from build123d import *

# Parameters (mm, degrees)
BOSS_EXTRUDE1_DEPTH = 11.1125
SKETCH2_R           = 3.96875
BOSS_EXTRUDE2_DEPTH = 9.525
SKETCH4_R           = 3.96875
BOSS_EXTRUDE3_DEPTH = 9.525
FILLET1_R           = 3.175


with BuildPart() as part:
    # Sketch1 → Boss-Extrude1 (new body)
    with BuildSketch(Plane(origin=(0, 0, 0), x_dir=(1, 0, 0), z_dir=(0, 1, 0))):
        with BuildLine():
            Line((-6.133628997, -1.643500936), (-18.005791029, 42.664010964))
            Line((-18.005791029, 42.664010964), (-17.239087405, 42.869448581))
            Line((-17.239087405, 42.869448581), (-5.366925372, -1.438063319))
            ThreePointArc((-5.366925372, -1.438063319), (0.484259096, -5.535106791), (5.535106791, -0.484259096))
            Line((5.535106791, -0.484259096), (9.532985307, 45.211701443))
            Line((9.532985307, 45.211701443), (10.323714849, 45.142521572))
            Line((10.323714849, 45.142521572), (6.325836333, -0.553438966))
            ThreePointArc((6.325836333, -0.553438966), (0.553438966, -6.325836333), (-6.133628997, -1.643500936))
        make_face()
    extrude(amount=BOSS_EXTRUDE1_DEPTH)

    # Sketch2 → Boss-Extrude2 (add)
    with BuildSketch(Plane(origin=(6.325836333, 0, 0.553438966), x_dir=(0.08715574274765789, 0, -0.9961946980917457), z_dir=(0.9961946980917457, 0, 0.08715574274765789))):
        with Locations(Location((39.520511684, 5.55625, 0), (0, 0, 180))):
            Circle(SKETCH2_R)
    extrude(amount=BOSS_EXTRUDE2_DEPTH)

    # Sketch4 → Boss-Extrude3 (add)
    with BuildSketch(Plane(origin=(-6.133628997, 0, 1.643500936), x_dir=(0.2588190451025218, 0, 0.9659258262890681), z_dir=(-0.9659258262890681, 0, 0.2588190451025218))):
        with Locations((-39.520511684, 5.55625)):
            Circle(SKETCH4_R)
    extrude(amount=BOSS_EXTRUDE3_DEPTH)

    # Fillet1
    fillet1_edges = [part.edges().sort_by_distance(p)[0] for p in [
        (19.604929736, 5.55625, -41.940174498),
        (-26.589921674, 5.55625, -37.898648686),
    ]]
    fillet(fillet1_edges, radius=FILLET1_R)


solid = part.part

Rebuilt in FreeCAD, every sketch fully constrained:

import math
import FreeCAD as App
import Part
import Sketcher

V = App.Vector
Q = App.Units.Quantity


def edges_at(feature, points):
    """Names of the edges that pass closest to the given points."""
    edges = feature.Shape.Edges
    near = lambda p: min(range(len(edges)), key=lambda i: edges[i].distToShape(Part.Vertex(*p))[0])
    return sorted({f"Edge{near(p) + 1}" for p in points})

doc = App.newDocument("Part")
body = doc.addObject("PartDesign::Body", "Body")

# Sketch on XZ plane
sketch1 = body.newObject("Sketcher::SketchObject", "Sketch")
sketch1.AttachmentSupport = (doc.getObject("XZ_Plane"), [""])
sketch1.MapMode = "FlatFace"
sketch1.addGeometry([
    Part.LineSegment(V(-18.005791, -42.664011, 0), V(-6.133629, 1.643501, 0)),  # 0
    Part.ArcOfCircle(Part.Circle(V(0, 0, 0), V(0, 0, 1), 6.35), math.radians(5), math.radians(165)),  # 1
    Part.LineSegment(V(6.325836, 0.553439, 0), V(10.323715, -45.142522, 0)),  # 2
    Part.LineSegment(V(10.323715, -45.142522, 0), V(9.532985, -45.211701, 0)),  # 3
    Part.LineSegment(V(9.532985, -45.211701, 0), V(5.535107, 0.484259, 0)),  # 4
    Part.ArcOfCircle(Part.Circle(V(0, 0, 0), V(0, 0, 1), 5.55625), math.radians(5), math.radians(165)),  # 5
    Part.LineSegment(V(-5.366925, 1.438063, 0), V(-17.239087, -42.869449, 0)),  # 6
    Part.LineSegment(V(-17.239087, -42.869449, 0), V(-18.005791, -42.664011, 0)),  # 7
], False)
sketch1.addConstraint([
    Sketcher.Constraint("Tangent", 0, 2, 1, 2),
    Sketcher.Constraint("Tangent", 1, 1, 2, 1),
    Sketcher.Constraint("Coincident", 2, 2, 3, 1),
    Sketcher.Constraint("Coincident", 3, 2, 4, 1),
    Sketcher.Constraint("Tangent", 4, 2, 5, 1),
    Sketcher.Constraint("Tangent", 5, 2, 6, 1),
    Sketcher.Constraint("Coincident", 6, 2, 7, 1),
    Sketcher.Constraint("Coincident", 7, 2, 0, 1),
    Sketcher.Constraint("Coincident", 1, 3, -1, 1),
    Sketcher.Constraint("Coincident", 5, 3, -1, 1),
    Sketcher.Constraint("Perpendicular", 2, 3),
    Sketcher.Constraint("Perpendicular", 3, 4),
    Sketcher.Constraint("Parallel", 0, 6),
    Sketcher.Constraint("Perpendicular", 6, 7),
    Sketcher.Constraint("Equal", 0, 2),
    Sketcher.Constraint("Radius", 1, Q("0.25 in")),
    Sketcher.Constraint("Angle", 0, Q("75 deg")),
    Sketcher.Constraint("Angle", 2, Q("-85 deg")),
    Sketcher.Constraint("Radius", 5, Q("0.21875 in")),
    Sketcher.Constraint("DistanceY", 3, 2, -1, 1, 45.211701),
])
pad1 = body.newObject("PartDesign::Pad", "Pad")
pad1.Profile = sketch1
pad1.Length = Q("0.4375 in")
pad1.Reversed = True

# Sketch on an angled plane
sketch2 = body.newObject("Sketcher::SketchObject", "Sketch001")
sketch2.Placement = App.Placement(V(6.325836, 0, 0.553439), App.Rotation(V(0.087155743, 0, -0.996194698), V(0, 1, 0), V(0.996194698, 0, 0.087155743), "ZXY"))
sketch2.addGeometry(Part.Circle(V(39.520512, 5.55625, 0), V(0, 0, 1), 3.96875), False)
sketch2.addConstraint([
    Sketcher.Constraint("Diameter", 0, Q("0.3125 in")),
    Sketcher.Constraint("DistanceY", -1, 1, 0, 3, Q("0.21875 in")),
    Sketcher.Constraint("DistanceX", -1, 1, 0, 3, 39.520512),
])
pad2 = body.newObject("PartDesign::Pad", "Pad001")
pad2.Profile = sketch2
pad2.Length = Q("0.375 in")

# Sketch on an angled plane
sketch3 = body.newObject("Sketcher::SketchObject", "Sketch002")
sketch3.Placement = App.Placement(V(-6.133629, 0, 1.643501), App.Rotation(V(0.258819045, 0, 0.965925826), V(0, 0.999999999, 0), V(-0.965925826, 0, 0.258819045), "ZXY"))
sketch3.addGeometry(Part.Circle(V(-39.520512, 5.55625, 0), V(0, 0, 1), 3.96875), False)
sketch3.addConstraint([
    Sketcher.Constraint("Diameter", 0, Q("0.3125 in")),
    Sketcher.Constraint("DistanceY", -1, 1, 0, 3, Q("0.21875 in")),
    Sketcher.Constraint("DistanceX", 0, 3, -1, 1, 39.520512),
])
pad3 = body.newObject("PartDesign::Pad", "Pad002")
pad3.Profile = sketch3
pad3.Length = Q("0.375 in")
doc.recompute()

fillet = body.newObject("PartDesign::Fillet", "Fillet")
fillet.Base = (pad3, edges_at(pad3, [(19.605, 5.556, -41.94), (-26.59, 5.556, -37.899)]))
fillet.Radius = Q("0.125 in")

doc.recompute()
